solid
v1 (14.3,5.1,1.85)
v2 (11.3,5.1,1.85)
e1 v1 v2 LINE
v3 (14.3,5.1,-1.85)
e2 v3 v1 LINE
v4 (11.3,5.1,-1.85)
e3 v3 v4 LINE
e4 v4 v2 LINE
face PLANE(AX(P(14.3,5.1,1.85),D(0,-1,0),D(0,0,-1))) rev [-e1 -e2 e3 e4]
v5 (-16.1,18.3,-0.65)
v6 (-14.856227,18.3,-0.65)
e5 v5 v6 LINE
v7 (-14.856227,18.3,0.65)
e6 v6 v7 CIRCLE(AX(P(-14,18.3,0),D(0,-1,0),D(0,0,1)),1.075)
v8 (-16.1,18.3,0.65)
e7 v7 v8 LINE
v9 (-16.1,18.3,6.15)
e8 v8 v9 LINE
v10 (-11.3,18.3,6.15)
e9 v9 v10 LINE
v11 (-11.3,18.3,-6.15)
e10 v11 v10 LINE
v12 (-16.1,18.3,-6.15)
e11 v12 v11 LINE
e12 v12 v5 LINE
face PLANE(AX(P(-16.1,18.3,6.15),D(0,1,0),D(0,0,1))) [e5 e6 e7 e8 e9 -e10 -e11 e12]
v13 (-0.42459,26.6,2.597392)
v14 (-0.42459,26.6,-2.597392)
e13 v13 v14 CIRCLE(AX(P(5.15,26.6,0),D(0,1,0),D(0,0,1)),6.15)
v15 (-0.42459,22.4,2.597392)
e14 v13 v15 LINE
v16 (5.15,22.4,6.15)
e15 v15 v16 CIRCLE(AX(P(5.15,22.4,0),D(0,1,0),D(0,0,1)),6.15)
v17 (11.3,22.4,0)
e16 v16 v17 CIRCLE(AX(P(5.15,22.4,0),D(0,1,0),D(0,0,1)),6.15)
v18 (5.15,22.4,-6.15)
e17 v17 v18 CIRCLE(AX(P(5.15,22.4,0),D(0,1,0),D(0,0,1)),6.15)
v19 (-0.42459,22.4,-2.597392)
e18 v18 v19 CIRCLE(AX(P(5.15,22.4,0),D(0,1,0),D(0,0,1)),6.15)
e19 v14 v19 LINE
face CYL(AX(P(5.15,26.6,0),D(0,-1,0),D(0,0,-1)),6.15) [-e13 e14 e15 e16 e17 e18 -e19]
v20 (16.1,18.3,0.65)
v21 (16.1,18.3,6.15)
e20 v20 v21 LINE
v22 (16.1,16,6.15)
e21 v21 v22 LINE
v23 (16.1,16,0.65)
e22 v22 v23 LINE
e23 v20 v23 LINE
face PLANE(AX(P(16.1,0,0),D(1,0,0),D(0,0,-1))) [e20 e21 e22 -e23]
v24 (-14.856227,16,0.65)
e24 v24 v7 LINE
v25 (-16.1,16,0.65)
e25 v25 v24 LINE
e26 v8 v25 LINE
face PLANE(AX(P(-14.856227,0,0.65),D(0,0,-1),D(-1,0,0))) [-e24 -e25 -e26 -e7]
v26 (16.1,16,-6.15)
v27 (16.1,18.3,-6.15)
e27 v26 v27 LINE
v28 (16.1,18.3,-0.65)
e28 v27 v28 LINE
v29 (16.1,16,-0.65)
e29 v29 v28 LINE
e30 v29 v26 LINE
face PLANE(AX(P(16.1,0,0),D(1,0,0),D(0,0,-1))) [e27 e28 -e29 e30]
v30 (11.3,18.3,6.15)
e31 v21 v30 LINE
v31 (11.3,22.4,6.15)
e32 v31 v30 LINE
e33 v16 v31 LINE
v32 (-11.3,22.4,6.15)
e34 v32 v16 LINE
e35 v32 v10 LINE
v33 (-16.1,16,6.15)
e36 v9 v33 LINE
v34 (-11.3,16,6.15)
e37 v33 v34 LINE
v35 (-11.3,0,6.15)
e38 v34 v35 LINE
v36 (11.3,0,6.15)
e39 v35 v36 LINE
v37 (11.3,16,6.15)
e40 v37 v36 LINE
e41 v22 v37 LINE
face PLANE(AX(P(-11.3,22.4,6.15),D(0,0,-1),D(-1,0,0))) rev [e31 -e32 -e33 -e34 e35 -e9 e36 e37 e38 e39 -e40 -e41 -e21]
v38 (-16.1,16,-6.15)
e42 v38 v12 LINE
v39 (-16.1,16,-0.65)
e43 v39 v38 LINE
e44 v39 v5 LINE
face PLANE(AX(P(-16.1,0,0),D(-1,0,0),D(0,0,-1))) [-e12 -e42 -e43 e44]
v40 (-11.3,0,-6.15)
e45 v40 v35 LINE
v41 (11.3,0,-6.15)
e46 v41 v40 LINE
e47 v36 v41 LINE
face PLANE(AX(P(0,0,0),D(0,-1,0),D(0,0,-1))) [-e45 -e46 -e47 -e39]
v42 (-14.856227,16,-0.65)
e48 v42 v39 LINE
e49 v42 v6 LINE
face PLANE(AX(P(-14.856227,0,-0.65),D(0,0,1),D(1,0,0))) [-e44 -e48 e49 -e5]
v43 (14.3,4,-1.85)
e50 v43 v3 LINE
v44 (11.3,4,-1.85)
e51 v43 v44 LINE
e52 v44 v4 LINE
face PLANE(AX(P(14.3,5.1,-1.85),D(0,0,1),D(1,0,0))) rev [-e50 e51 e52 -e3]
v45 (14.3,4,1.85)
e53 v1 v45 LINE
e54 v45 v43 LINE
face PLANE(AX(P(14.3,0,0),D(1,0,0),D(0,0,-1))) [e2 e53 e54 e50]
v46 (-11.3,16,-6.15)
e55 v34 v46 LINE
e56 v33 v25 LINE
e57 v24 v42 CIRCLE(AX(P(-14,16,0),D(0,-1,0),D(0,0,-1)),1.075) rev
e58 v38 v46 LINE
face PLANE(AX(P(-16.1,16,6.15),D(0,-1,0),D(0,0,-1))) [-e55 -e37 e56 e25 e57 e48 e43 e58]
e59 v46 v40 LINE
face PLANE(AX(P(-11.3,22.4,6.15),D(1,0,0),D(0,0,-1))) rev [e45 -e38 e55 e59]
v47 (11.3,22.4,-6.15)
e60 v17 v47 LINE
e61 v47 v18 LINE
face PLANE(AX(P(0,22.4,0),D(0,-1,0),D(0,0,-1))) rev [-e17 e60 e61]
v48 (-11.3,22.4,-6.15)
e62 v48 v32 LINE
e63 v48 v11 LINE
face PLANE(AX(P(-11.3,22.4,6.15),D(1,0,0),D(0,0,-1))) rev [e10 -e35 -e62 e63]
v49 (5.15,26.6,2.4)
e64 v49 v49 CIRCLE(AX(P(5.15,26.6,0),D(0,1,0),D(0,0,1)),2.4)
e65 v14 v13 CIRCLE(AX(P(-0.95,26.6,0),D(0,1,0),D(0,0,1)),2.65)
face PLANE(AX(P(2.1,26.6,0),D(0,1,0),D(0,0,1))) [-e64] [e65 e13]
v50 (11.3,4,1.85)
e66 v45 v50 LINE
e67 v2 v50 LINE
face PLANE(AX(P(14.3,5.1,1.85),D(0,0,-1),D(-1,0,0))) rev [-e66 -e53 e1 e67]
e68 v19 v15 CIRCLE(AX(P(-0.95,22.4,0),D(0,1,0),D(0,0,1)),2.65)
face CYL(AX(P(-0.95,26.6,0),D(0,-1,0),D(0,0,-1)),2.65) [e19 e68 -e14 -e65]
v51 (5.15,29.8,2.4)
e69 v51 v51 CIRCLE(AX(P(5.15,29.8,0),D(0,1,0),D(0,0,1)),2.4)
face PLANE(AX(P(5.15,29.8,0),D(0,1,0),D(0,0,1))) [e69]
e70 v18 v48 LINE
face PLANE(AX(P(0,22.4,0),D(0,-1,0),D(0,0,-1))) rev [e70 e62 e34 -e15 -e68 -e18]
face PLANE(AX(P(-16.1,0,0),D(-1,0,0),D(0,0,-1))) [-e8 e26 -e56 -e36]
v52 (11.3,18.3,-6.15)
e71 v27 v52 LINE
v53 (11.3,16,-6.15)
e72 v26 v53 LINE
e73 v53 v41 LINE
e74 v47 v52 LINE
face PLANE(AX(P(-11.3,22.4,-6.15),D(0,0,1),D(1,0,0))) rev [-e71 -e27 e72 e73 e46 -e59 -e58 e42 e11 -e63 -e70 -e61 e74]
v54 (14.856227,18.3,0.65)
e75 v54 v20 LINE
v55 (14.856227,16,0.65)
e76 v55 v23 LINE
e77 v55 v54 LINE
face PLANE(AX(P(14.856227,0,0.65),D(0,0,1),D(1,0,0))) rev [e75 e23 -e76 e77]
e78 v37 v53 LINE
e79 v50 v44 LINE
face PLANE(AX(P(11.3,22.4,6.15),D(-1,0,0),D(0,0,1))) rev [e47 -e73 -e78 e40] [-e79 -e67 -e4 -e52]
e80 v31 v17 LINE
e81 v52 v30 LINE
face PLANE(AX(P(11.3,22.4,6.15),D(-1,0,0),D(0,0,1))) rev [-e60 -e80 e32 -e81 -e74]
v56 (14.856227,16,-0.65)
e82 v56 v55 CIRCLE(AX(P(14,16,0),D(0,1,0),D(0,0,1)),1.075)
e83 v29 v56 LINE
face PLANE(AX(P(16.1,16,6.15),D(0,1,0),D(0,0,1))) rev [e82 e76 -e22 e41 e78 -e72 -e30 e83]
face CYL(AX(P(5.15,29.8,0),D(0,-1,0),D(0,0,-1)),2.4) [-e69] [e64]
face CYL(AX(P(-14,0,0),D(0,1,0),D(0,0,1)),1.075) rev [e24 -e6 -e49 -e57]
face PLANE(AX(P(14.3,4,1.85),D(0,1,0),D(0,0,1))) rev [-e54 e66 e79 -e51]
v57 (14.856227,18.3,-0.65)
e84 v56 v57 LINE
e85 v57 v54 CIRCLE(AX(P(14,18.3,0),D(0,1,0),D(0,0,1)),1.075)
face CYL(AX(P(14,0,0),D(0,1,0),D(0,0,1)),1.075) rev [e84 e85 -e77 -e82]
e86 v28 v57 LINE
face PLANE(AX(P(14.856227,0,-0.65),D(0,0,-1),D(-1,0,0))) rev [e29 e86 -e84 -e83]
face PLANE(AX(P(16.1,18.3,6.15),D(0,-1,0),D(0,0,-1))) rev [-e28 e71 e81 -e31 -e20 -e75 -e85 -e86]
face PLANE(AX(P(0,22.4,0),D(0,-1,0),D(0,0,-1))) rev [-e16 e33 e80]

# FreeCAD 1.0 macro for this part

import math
import FreeCAD as App
import Part
import Sketcher

doc = App.newDocument("Part")
params = doc.addObject("Spreadsheet::Sheet", "Params")
for row, (alias, value) in enumerate([
    ("sketch1_width", "22.6 mm"),
    ("sketch1_height", "12.3 mm"),
    ("pad1_length", "22.4 mm"),
    ("sketch2_width", "2.3 mm"),
    ("sketch2_height", "12.3 mm"),
    ("pad2_length", "4.8 mm"),
    ("sketch3_height", "1.3 mm"),
    ("sketch4_radius", "6.15 mm"),
    ("sketch4_radius2", "2.65 mm"),
    ("pad3_length", "4.2 mm"),
    ("sketch5_diameter", "4.8 mm"),
    ("pad4_length", "3.2 mm"),
    ("sketch6_width", "1.1 mm"),
    ("sketch6_height", "3.7 mm"),
    ("pad5_length", "3 mm"),
], start=1):
    params.set(f"A{row}", alias)
    params.set(f"B{row}", "=" + value)
    params.setAlias(f"B{row}", alias)

body = doc.addObject("PartDesign::Body", "Body")

# Sketch on XZ plane
sketch1 = doc.addObject("Sketcher::SketchObject", "Sketch")
body.addObject(sketch1)
sketch1.AttachmentSupport = (doc.XZ_Plane, [""])
sketch1.MapMode = "FlatFace"
sketch1.addGeometry([
    Part.LineSegment(App.Vector(-11, -6, 0), App.Vector(-11, 6, 0)),
    Part.LineSegment(App.Vector(-11, 6, 0), App.Vector(11, 6, 0)),
    Part.LineSegment(App.Vector(11, 6, 0), App.Vector(11, -6, 0)),
    Part.LineSegment(App.Vector(11, -6, 0), App.Vector(-11, -6, 0)),
], False)
sketch1.addConstraint([
    Sketcher.Constraint("Coincident", 0, 2, 1, 1),
    Sketcher.Constraint("Coincident", 1, 2, 2, 1),
    Sketcher.Constraint("Coincident", 2, 2, 3, 1),
    Sketcher.Constraint("Coincident", 3, 2, 0, 1),
    Sketcher.Constraint("Vertical", 0),
    Sketcher.Constraint("Horizontal", 1),
    Sketcher.Constraint("Vertical", 2),
    Sketcher.Constraint("Horizontal", 3),
    Sketcher.Constraint("Symmetric", 0, 2, 2, 2, -1, 1),
    Sketcher.Constraint("DistanceX", 1, 1, 1, 2, 22.6),
    Sketcher.Constraint("DistanceY", 0, 1, 0, 2, 12.3),
])
sketch1.setExpression("Constraints[9]", "Params.sketch1_width")
sketch1.setExpression("Constraints[10]", "Params.sketch1_height")
pad1 = doc.addObject("PartDesign::Pad", "Pad")
body.addObject(pad1)
pad1.Profile = sketch1
pad1.setExpression("Length", "Params.pad1_length")
pad1.Reversed = True

# Sketch on YZ plane
sketch2 = doc.addObject("Sketcher::SketchObject", "Sketch001")
body.addObject(sketch2)
sketch2.AttachmentSupport = (doc.YZ_Plane, [""])
sketch2.MapMode = "FlatFace"
sketch2.AttachmentOffset = App.Placement(App.Vector(0, 0, 11.3), App.Rotation())
sketch2.addGeometry([
    Part.LineSegment(App.Vector(18.3, 6.2, 0), App.Vector(16, 6.2, 0)),
    Part.LineSegment(App.Vector(16, 6.2, 0), App.Vector(16, -6.2, 0)),
    Part.LineSegment(App.Vector(16, -6.2, 0), App.Vector(18.3, -6.2, 0)),
    Part.LineSegment(App.Vector(18.3, -6.2, 0), App.Vector(18.3, 6.2, 0)),
], False)
sketch2.addConstraint([
    Sketcher.Constraint("Coincident", 0, 2, 1, 1),
    Sketcher.Constraint("Coincident", 1, 2, 2, 1),
    Sketcher.Constraint("Coincident", 2, 2, 3, 1),
    Sketcher.Constraint("Coincident", 3, 2, 0, 1),
    Sketcher.Constraint("Horizontal", 0),
    Sketcher.Constraint("Vertical", 1),
    Sketcher.Constraint("Horizontal", 2),
    Sketcher.Constraint("Vertical", 3),
    Sketcher.Constraint("DistanceX", 0, 2, 0, 1, 2.3),
    Sketcher.Constraint("DistanceY", 1, 2, 1, 1, 12.3),
    Sketcher.Constraint("DistanceX", -1, 1, 0, 2, 16.0),
    Sketcher.Constraint("DistanceY", -1, 1, 0, 2, 6.15),
])
sketch2.setExpression("Constraints[8]", "Params.sketch2_width")
sketch2.setExpression("Constraints[9]", "Params.sketch2_height")
pad2 = doc.addObject("PartDesign::Pad", "Pad001")
body.addObject(pad2)
pad2.Profile = sketch2
pad2.setExpression("Length", "Params.pad2_length")

# Sketch on XZ plane
sketch3 = doc.addObject("Sketcher::SketchObject", "Sketch002")
body.addObject(sketch3)
sketch3.AttachmentSupport = (doc.XZ_Plane, [""])
sketch3.MapMode = "FlatFace"
sketch3.AttachmentOffset = App.Placement(App.Vector(0, 0, -18.3), App.Rotation())
sketch3.addGeometry([
    Part.LineSegment(App.Vector(16.1, -0.7, 0), App.Vector(14.9, -0.7, 0)),
    Part.ArcOfCircle(Part.Circle(App.Vector(14, 0, 0), App.Vector(0, 0, 1), 1.1), math.radians(37), math.radians(323)),
    Part.LineSegment(App.Vector(14.9, 0.7, 0), App.Vector(16.1, 0.7, 0)),
    Part.LineSegment(App.Vector(16.1, 0.7, 0), App.Vector(16.1, -0.7, 0)),
], False)
sketch3.addConstraint([
    Sketcher.Constraint("Coincident", 0, 2, 1, 2),
    Sketcher.Constraint("Coincident", 1, 1, 2, 1),
    Sketcher.Constraint("Coincident", 2, 2, 3, 1),
    Sketcher.Constraint("Coincident", 3, 2, 0, 1),
    Sketcher.Constraint("Horizontal", 0),
    Sketcher.Constraint("Horizontal", 2),
    Sketcher.Constraint("Vertical", 3),
    Sketcher.Constraint("Symmetric", 0, 2, 1, 1, -1),
    Sketcher.Constraint("DistanceY", 3, 2, 3, 1, 1.3),
    Sketcher.Constraint("DistanceX", -1, 1, 1, 3, 14.0),
    Sketcher.Constraint("Radius", 1, 1.075),
    Sketcher.Constraint("DistanceX", -1, 1, 2, 2, 16.1),
])
sketch3.setExpression("Constraints[8]", "Params.sketch3_height")
pocket1 = doc.addObject("PartDesign::Pocket", "Pocket")
body.addObject(pocket1)
pocket1.Profile = sketch3
pocket1.Type = "ThroughAll"
pocket1.Reversed = True
doc.recompute()

mirrored = doc.addObject("PartDesign::Mirrored", "Mirrored")
body.addObject(mirrored)
mirrored.Originals = [pad2, pocket1]
mirrored.MirrorPlane = (doc.YZ_Plane, [""])
body.Tip = mirrored

# Sketch on XZ plane
sketch4 = doc.addObject("Sketcher::SketchObject", "Sketch003")
body.addObject(sketch4)
sketch4.AttachmentSupport = (doc.XZ_Plane, [""])
sketch4.MapMode = "FlatFace"
sketch4.AttachmentOffset = App.Placement(App.Vector(0, 0, -22.4), App.Rotation())
sketch4.addGeometry([
    Part.ArcOfCircle(Part.Circle(App.Vector(5.2, 0, 0), App.Vector(0, 0, 1), 6.2), math.radians(-155), math.radians(155)),
    Part.ArcOfCircle(Part.Circle(App.Vector(-0.9, 0, 0), App.Vector(0, 0, 1), 2.6), math.radians(79), math.radians(281)),
], False)
sketch4.addConstraint([
    Sketcher.Constraint("Coincident", 0, 1, 1, 2),
    Sketcher.Constraint("Coincident", 1, 1, 0, 2),
    Sketcher.Constraint("Symmetric", 0, 1, 1, 1, -1),
    Sketcher.Constraint("Radius", 0, 6.15),
    Sketcher.Constraint("Radius", 1, 2.65),
    Sketcher.Constraint("DistanceX", 1, 3, 0, 3, 6.1),
    Sketcher.Constraint("DistanceX", -1, 1, 0, 3, 5.15),
])
sketch4.setExpression("Constraints[3]", "Params.sketch4_radius")
sketch4.setExpression("Constraints[4]", "Params.sketch4_radius2")
pad3 = doc.addObject("PartDesign::Pad", "Pad002")
body.addObject(pad3)
pad3.Profile = sketch4
pad3.setExpression("Length", "Params.pad3_length")
pad3.Reversed = True

# Sketch on XZ plane
sketch5 = doc.addObject("Sketcher::SketchObject", "Sketch004")
body.addObject(sketch5)
sketch5.AttachmentSupport = (doc.XZ_Plane, [""])
sketch5.MapMode = "FlatFace"
sketch5.AttachmentOffset = App.Placement(App.Vector(0, 0, -26.6), App.Rotation())
sketch5.addGeometry(Part.Circle(App.Vector(5.2, 0, 0), App.Vector(0, 0, 1), 2.4), False)
sketch5.addConstraint([
    Sketcher.Constraint("PointOnObject", 0, 3, -1),
    Sketcher.Constraint("Diameter", 0, 4.8),
    Sketcher.Constraint("DistanceX", -1, 1, 0, 3, 5.15),
])
sketch5.setExpression("Constraints[1]", "Params.sketch5_diameter")
pad4 = doc.addObject("PartDesign::Pad", "Pad003")
body.addObject(pad4)
pad4.Profile = sketch5
pad4.setExpression("Length", "Params.pad4_length")
pad4.Reversed = True

# Sketch on YZ plane
sketch6 = doc.addObject("Sketcher::SketchObject", "Sketch005")
body.addObject(sketch6)
sketch6.AttachmentSupport = (doc.YZ_Plane, [""])
sketch6.MapMode = "FlatFace"
sketch6.AttachmentOffset = App.Placement(App.Vector(0, 0, 11.3), App.Rotation())
sketch6.addGeometry([
    Part.LineSegment(App.Vector(5.1, 1.9, 0), App.Vector(4, 1.9, 0)),
    Part.LineSegment(App.Vector(4, 1.9, 0), App.Vector(4, -1.9, 0)),
    Part.LineSegment(App.Vector(4, -1.9, 0), App.Vector(5.1, -1.9, 0)),
    Part.LineSegment(App.Vector(5.1, -1.9, 0), App.Vector(5.1, 1.9, 0)),
], False)
sketch6.addConstraint([
    Sketcher.Constraint("Coincident", 0, 2, 1, 1),
    Sketcher.Constraint("Coincident", 1, 2, 2, 1),
    Sketcher.Constraint("Coincident", 2, 2, 3, 1),
    Sketcher.Constraint("Coincident", 3, 2, 0, 1),
    Sketcher.Constraint("Horizontal", 0),
    Sketcher.Constraint("Vertical", 1),
    Sketcher.Constraint("Horizontal", 2),
    Sketcher.Constraint("Vertical", 3),
    Sketcher.Constraint("DistanceX", 0, 2, 0, 1, 1.1),
    Sketcher.Constraint("DistanceY", 1, 2, 1, 1, 3.7),
    Sketcher.Constraint("DistanceX", -1, 1, 0, 2, 4.0),
    Sketcher.Constraint("DistanceY", -1, 1, 0, 2, 1.85),
])
sketch6.setExpression("Constraints[8]", "Params.sketch6_width")
sketch6.setExpression("Constraints[9]", "Params.sketch6_height")
pad5 = doc.addObject("PartDesign::Pad", "Pad004")
body.addObject(pad5)
pad5.Profile = sketch6
pad5.setExpression("Length", "Params.pad5_length")

doc.recompute()
